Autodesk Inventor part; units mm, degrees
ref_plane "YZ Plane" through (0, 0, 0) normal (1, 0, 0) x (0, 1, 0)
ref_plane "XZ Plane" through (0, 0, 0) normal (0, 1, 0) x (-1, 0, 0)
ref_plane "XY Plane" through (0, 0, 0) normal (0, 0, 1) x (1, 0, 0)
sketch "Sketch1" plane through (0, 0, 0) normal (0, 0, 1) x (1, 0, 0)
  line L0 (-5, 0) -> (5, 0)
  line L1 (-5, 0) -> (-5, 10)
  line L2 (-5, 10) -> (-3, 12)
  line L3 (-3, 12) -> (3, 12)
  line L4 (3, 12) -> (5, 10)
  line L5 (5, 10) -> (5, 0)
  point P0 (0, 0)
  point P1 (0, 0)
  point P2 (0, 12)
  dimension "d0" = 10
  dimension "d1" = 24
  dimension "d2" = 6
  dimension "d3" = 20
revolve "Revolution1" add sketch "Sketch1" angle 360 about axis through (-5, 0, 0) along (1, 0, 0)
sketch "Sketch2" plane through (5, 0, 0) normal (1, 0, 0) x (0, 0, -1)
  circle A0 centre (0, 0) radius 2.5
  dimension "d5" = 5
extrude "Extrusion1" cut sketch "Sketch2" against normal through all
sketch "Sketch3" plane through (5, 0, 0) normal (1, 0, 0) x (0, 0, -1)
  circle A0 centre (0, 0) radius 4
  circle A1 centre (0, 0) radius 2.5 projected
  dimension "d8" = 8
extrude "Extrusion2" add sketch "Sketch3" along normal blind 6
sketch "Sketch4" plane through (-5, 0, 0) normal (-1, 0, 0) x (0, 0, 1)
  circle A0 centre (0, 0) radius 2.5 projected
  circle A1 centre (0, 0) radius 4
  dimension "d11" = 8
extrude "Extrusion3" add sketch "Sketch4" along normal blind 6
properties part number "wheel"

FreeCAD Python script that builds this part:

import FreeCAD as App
import Part
import Sketcher
from FreeCAD import Vector


def add_polygon(sketch, points):
    """Adds a closed chain of lines whose ends are joined by coincident constraints."""
    first, n = sketch.GeometryCount, len(points)
    for a, b in zip(points, points[1:] + points[:1]):
        sketch.addGeometry(Part.LineSegment(App.Vector(*a, 0), App.Vector(*b, 0)), False)
    for i in range(n):
        sketch.addConstraint(Sketcher.Constraint("Coincident", first + i, 2, first + (i + 1) % n, 1))

doc = App.newDocument("Part")
body = doc.addObject("PartDesign::Body", "Body")

sketch1 = body.newObject("Sketcher::SketchObject", "Sketch")
sketch1.AttachmentSupport = (doc.getObject("XY_Plane"), [""])
sketch1.MapMode = "FlatFace"
add_polygon(sketch1, [(-5, 10), (-5, 0), (5, 0), (5, 10), (3, 12), (-3, 12)])
sketch1.addConstraint([
    Sketcher.Constraint("Vertical", 0),
    Sketcher.Constraint("Horizontal", 1),
    Sketcher.Constraint("Vertical", 2),
    Sketcher.Constraint("Horizontal", 4),
    Sketcher.Constraint("Symmetric", 0, 2, 1, 2, -1, 1),
    Sketcher.Constraint("Perpendicular", 3, 5),
    Sketcher.Constraint("Horizontal", 2, 2, 5, 2),
    Sketcher.Constraint("Equal", 1, 0),
    Sketcher.Constraint("Equal", 3, 5),
    Sketcher.Constraint("DistanceX", 1, 1, 1, 2, 10.0),
    Sketcher.Constraint("DistanceX", 4, 2, 4, 1, 6.0),
])
revolution = body.newObject("PartDesign::Revolution", "Revolution")
revolution.Profile = sketch1
revolution.ReferenceAxis = (sketch1, ["H_Axis"])
revolution.Angle = 360

sketch2 = body.newObject("Sketcher::SketchObject", "Sketch001")
sketch2.AttachmentSupport = (doc.getObject("YZ_Plane"), [""])
sketch2.MapMode = "FlatFace"
sketch2.AttachmentOffset = App.Placement(Vector(0, 0, 5), App.Rotation())
sketch2.addGeometry(Part.Circle(Vector(0, 0, 0), Vector(0, 0, 1), 2.5), False)
sketch2.addConstraint([
    Sketcher.Constraint("Coincident", 0, 3, -1, 1),
    Sketcher.Constraint("Diameter", 0, 5.0),
])
pocket1 = body.newObject("PartDesign::Pocket", "Pocket")
pocket1.Profile = sketch2
pocket1.Type = "ThroughAll"

sketch3 = body.newObject("Sketcher::SketchObject", "Sketch002")
sketch3.AttachmentSupport = (doc.getObject("YZ_Plane"), [""])
sketch3.MapMode = "FlatFace"
sketch3.AttachmentOffset = App.Placement(Vector(0, 0, 5), App.Rotation())
sketch3.addGeometry([
    Part.Circle(Vector(0, 0, 0), Vector(0, 0, 1), 4),
    Part.Circle(Vector(0, 0, 0), Vector(0, 0, 1), 2.5),
], False)
sketch3.addConstraint([
    Sketcher.Constraint("Coincident", 0, 3, -1, 1),
    Sketcher.Constraint("Coincident", 1, 3, -1, 1),
    Sketcher.Constraint("Diameter", 0, 8.0),
    Sketcher.Constraint("Diameter", 1, 5.0),
])
pad1 = body.newObject("PartDesign::Pad", "Pad")
pad1.Profile = sketch3
pad1.Length = 6

sketch4 = body.newObject("Sketcher::SketchObject", "Sketch003")
sketch4.AttachmentSupport = (doc.getObject("YZ_Plane"), [""])
sketch4.MapMode = "FlatFace"
sketch4.AttachmentOffset = App.Placement(Vector(0, 0, -5), App.Rotation())
sketch4.addGeometry([
    Part.Circle(Vector(0, 0, 0), Vector(0, 0, 1), 4),
    Part.Circle(Vector(0, 0, 0), Vector(0, 0, 1), 2.5),
], False)
sketch4.addConstraint([
    Sketcher.Constraint("Coincident", 0, 3, -1, 1),
    Sketcher.Constraint("Coincident", 1, 3, -1, 1),
    Sketcher.Constraint("Diameter", 0, 8.0),
    Sketcher.Constraint("Diameter", 1, 5.0),
])
pad2 = body.newObject("PartDesign::Pad", "Pad001")
pad2.Profile = sketch4
pad2.Length = 6
pad2.Reversed = True

doc.recompute()
